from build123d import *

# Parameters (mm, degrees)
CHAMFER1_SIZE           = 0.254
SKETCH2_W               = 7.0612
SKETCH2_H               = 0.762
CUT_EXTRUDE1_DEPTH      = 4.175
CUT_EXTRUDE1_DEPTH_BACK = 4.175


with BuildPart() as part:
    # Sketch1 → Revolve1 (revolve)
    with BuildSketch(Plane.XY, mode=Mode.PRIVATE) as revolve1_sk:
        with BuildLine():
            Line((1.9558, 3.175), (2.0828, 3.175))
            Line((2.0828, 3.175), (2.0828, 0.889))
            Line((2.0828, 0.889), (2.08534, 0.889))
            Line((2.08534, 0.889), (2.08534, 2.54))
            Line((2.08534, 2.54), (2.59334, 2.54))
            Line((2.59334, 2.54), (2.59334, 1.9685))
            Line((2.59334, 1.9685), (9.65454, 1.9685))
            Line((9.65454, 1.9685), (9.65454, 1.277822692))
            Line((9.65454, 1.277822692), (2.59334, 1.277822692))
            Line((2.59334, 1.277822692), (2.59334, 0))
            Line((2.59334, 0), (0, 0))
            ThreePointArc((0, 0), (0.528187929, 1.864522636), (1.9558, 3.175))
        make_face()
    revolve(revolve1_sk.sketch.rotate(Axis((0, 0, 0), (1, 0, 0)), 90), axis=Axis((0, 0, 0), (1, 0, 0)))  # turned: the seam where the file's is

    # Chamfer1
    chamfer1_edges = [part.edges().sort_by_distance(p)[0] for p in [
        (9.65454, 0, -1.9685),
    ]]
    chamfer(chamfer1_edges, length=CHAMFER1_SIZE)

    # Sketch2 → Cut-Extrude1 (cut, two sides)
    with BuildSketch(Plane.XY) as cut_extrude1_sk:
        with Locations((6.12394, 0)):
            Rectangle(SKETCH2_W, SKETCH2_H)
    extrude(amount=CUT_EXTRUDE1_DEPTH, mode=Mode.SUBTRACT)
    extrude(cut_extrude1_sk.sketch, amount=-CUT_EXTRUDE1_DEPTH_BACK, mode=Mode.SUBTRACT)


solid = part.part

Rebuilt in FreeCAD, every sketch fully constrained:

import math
import FreeCAD as App
import Part
import Sketcher
Q = App.Units.Quantity


def edges_at(feature, points):
    """Names of the edges that pass closest to the given points."""
    edges = feature.Shape.Edges
    near = lambda p: min(range(len(edges)), key=lambda i: edges[i].distToShape(Part.Vertex(*p))[0])
    return sorted({f"Edge{near(p) + 1}" for p in points})

doc = App.newDocument("Part")
body = doc.addObject("PartDesign::Body", "Body")

# Sketch on XY plane
sketch1 = doc.addObject("Sketcher::SketchObject", "Sketch")
body.addObject(sketch1)
sketch1.AttachmentSupport = (doc.XY_Plane, [""])
sketch1.MapMode = "FlatFace"
sketch1.addGeometry([
    Part.LineSegment(App.Vector(2.0828, 3.175, 0), App.Vector(1.9558, 3.175, 0)),  # 0
    Part.ArcOfCircle(Part.Circle(App.Vector(3.55501, 0, 0), App.Vector(0, 0, 1), 3.55501), math.radians(116.733861), math.radians(180)),  # 1
    Part.LineSegment(App.Vector(0, 0, 0), App.Vector(2.59334, 0, 0)),  # 2
    Part.LineSegment(App.Vector(2.59334, 0, 0), App.Vector(2.59334, 1.277823, 0)),  # 3
    Part.LineSegment(App.Vector(2.59334, 1.277823, 0), App.Vector(9.65454, 1.277823, 0)),  # 4
    Part.LineSegment(App.Vector(9.65454, 1.277823, 0), App.Vector(9.65454, 1.9685, 0)),  # 5
    Part.LineSegment(App.Vector(9.65454, 1.9685, 0), App.Vector(2.59334, 1.9685, 0)),  # 6
    Part.LineSegment(App.Vector(2.59334, 1.9685, 0), App.Vector(2.59334, 2.54, 0)),  # 7
    Part.LineSegment(App.Vector(2.59334, 2.54, 0), App.Vector(2.08534, 2.54, 0)),  # 8
    Part.LineSegment(App.Vector(2.08534, 2.54, 0), App.Vector(2.08534, 0.889, 0)),  # 9
    Part.LineSegment(App.Vector(2.08534, 0.889, 0), App.Vector(2.0828, 0.889, 0)),  # 10
    Part.LineSegment(App.Vector(2.0828, 0.889, 0), App.Vector(2.0828, 3.175, 0)),  # 11
], False)
sketch1.addConstraint([
    Sketcher.Constraint("Coincident", 0, 2, 1, 1),
    Sketcher.Constraint("Coincident", 1, 2, 2, 1),
    Sketcher.Constraint("Coincident", 2, 2, 3, 1),
    Sketcher.Constraint("Coincident", 3, 2, 4, 1),
    Sketcher.Constraint("Coincident", 4, 2, 5, 1),
    Sketcher.Constraint("Coincident", 5, 2, 6, 1),
    Sketcher.Constraint("Coincident", 6, 2, 7, 1),
    Sketcher.Constraint("Coincident", 7, 2, 8, 1),
    Sketcher.Constraint("Coincident", 8, 2, 9, 1),
    Sketcher.Constraint("Coincident", 9, 2, 10, 1),
    Sketcher.Constraint("Coincident", 10, 2, 11, 1),
    Sketcher.Constraint("Coincident", 11, 2, 0, 1),
    Sketcher.Constraint("Horizontal", 0),
    Sketcher.Constraint("Horizontal", 2),
    Sketcher.Constraint("Vertical", 3),
    Sketcher.Constraint("Horizontal", 4),
    Sketcher.Constraint("Vertical", 5),
    Sketcher.Constraint("Horizontal", 6),
    Sketcher.Constraint("Vertical", 7),
    Sketcher.Constraint("Horizontal", 8),
    Sketcher.Constraint("Vertical", 9),
    Sketcher.Constraint("Horizontal", 10),
    Sketcher.Constraint("Vertical", 11),
    Sketcher.Constraint("Coincident", 1, 2, -1, 1),
    Sketcher.Constraint("PointOnObject", 1, 3, -1),
    Sketcher.Constraint("Vertical", 3, 2, 6, 2),
    Sketcher.Constraint("DistanceX", 8, 2, 8, 1, Q("0.02 in")),
    Sketcher.Constraint("DistanceY", 11, 1, 11, 2, Q("0.09 in")),
    Sketcher.Constraint("DistanceY", -1, 1, 7, 2, Q("0.1 in")),
    Sketcher.Constraint("DistanceX", 0, 2, 0, 1, Q("0.005 in")),
    Sketcher.Constraint("DistanceX", 4, 1, 4, 2, Q("0.278 in")),
    Sketcher.Constraint("DistanceY", 9, 2, 9, 1, Q("0.065 in")),
    Sketcher.Constraint("DistanceX", 2, 1, 2, 2, Q("0.1021 in")),
    Sketcher.Constraint("DistanceX", 10, 2, 10, 1, Q("0.0001 in")),
    Sketcher.Constraint("DistanceY", 7, 1, 7, 2, Q("0.0225 in")),
    Sketcher.Constraint("DistanceY", 3, 1, 3, 2, 1.277823),
])
revolution = doc.addObject("PartDesign::Revolution", "Revolution")
body.addObject(revolution)
revolution.Profile = sketch1
revolution.ReferenceAxis = (sketch1, ["H_Axis"])
revolution.Angle = 360
doc.recompute()

chamfer = doc.addObject("PartDesign::Chamfer", "Chamfer")
body.addObject(chamfer)
chamfer.Base = (revolution, edges_at(revolution, [(9.655, 0, -1.968)]))
chamfer.Size = Q("0.01 in")

# Sketch on XY plane
sketch2 = doc.addObject("Sketcher::SketchObject", "Sketch001")
body.addObject(sketch2)
sketch2.AttachmentSupport = (doc.XY_Plane, [""])
sketch2.MapMode = "FlatFace"
sketch2.addGeometry([
    Part.LineSegment(App.Vector(2.59334, 0.381, 0), App.Vector(2.59334, -0.381, 0)),
    Part.LineSegment(App.Vector(2.59334, -0.381, 0), App.Vector(9.65454, -0.381, 0)),
    Part.LineSegment(App.Vector(9.65454, -0.381, 0), App.Vector(9.65454, 0.381, 0)),
    Part.LineSegment(App.Vector(9.65454, 0.381, 0), App.Vector(2.59334, 0.381, 0)),
], False)
sketch2.addConstraint([
    Sketcher.Constraint("Coincident", 0, 2, 1, 1),
    Sketcher.Constraint("Coincident", 1, 2, 2, 1),
    Sketcher.Constraint("Coincident", 2, 2, 3, 1),
    Sketcher.Constraint("Coincident", 3, 2, 0, 1),
    Sketcher.Constraint("Vertical", 0),
    Sketcher.Constraint("Horizontal", 1),
    Sketcher.Constraint("Vertical", 2),
    Sketcher.Constraint("Horizontal", 3),
    Sketcher.Constraint("DistanceY", 0, 2, 0, 1, Q("0.03 in")),
    Sketcher.Constraint("DistanceX", 1, 1, 1, 2, Q("0.278 in")),
    Sketcher.Constraint("DistanceY", 0, 2, -1, 1, Q("0.015 in")),
    Sketcher.Constraint("DistanceX", -1, 1, 0, 2, Q("0.1021 in")),
])
pocket1 = doc.addObject("PartDesign::Pocket", "Pocket")
body.addObject(pocket1)
pocket1.Profile = sketch2
pocket1.Type = "ThroughAll"
pocket1.Midplane = True

doc.recompute()
